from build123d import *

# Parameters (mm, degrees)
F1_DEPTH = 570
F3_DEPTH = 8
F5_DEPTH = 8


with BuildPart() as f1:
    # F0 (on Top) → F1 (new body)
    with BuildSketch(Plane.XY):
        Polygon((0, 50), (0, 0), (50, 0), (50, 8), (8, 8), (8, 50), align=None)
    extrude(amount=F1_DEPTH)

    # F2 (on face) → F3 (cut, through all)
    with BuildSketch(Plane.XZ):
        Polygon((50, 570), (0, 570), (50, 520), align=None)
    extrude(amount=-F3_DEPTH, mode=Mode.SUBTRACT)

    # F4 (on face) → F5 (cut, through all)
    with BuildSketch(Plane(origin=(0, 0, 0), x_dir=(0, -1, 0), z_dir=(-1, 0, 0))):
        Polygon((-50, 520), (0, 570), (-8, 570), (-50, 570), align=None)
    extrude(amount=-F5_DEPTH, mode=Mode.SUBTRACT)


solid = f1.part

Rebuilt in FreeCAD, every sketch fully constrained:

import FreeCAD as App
import Part
import Sketcher
from FreeCAD import Vector


def add_polygon(sketch, points):
    """Adds a closed chain of lines whose ends are joined by coincident constraints."""
    first, n = sketch.GeometryCount, len(points)
    for a, b in zip(points, points[1:] + points[:1]):
        sketch.addGeometry(Part.LineSegment(App.Vector(*a, 0), App.Vector(*b, 0)), False)
    for i in range(n):
        sketch.addConstraint(Sketcher.Constraint("Coincident", first + i, 2, first + (i + 1) % n, 1))

doc = App.newDocument("Part")
body = doc.addObject("PartDesign::Body", "Body")

# Sketch on XY plane
sketch1 = doc.addObject("Sketcher::SketchObject", "Sketch")
body.addObject(sketch1)
sketch1.AttachmentSupport = (doc.XY_Plane, [""])
sketch1.MapMode = "FlatFace"
add_polygon(sketch1, [(0, 50), (0, 0), (50, 0), (50, 8), (8, 8), (8, 50)])  # lines 0-5
sketch1.addConstraint(Sketcher.Constraint("Vertical", 0))
sketch1.addConstraint(Sketcher.Constraint("Horizontal", 1))
sketch1.addConstraint(Sketcher.Constraint("Vertical", 2))
sketch1.addConstraint(Sketcher.Constraint("Horizontal", 3))
sketch1.addConstraint(Sketcher.Constraint("Vertical", 4))
sketch1.addConstraint(Sketcher.Constraint("Horizontal", 5))
sketch1.addConstraint(Sketcher.Constraint("Coincident", 0, 2, -1, 1))
sketch1.addConstraint(Sketcher.Constraint("Equal", 1, 0))
sketch1.addConstraint(Sketcher.Constraint("Equal", 5, 2))
sketch1.addConstraint(Sketcher.Constraint("DistanceX", 1, 1, 1, 2, 50.0))
sketch1.addConstraint(Sketcher.Constraint("DistanceX", 3, 2, 3, 1, 42.0))
pad1 = doc.addObject("PartDesign::Pad", "Pad")
body.addObject(pad1)
pad1.Profile = sketch1
pad1.Length = 570

# Sketch on XZ plane
sketch2 = doc.addObject("Sketcher::SketchObject", "Sketch001")
body.addObject(sketch2)
sketch2.AttachmentSupport = (doc.XZ_Plane, [""])
sketch2.MapMode = "FlatFace"
add_polygon(sketch2, [(50, 570), (0, 570), (50, 520)])  # lines 0-2
sketch2.addConstraint(Sketcher.Constraint("Horizontal", 0))
sketch2.addConstraint(Sketcher.Constraint("Vertical", 2))
sketch2.addConstraint(Sketcher.Constraint("PointOnObject", 0, 2, -2))
sketch2.addConstraint(Sketcher.Constraint("Equal", 0, 2))
sketch2.addConstraint(Sketcher.Constraint("DistanceX", 0, 2, 0, 1, 50.0))
sketch2.addConstraint(Sketcher.Constraint("DistanceY", -1, 1, 0, 2, 570.0))
pocket1 = doc.addObject("PartDesign::Pocket", "Pocket")
body.addObject(pocket1)
pocket1.Profile = sketch2
pocket1.Length = 8

# Sketch on YZ plane
sketch3 = doc.addObject("Sketcher::SketchObject", "Sketch002")
body.addObject(sketch3)
sketch3.AttachmentSupport = (doc.YZ_Plane, [""])
sketch3.MapMode = "FlatFace"
add_polygon(sketch3, [(50, 520), (0, 570), (50, 570)])  # lines 0-2
sketch3.addConstraint(Sketcher.Constraint("Horizontal", 1))
sketch3.addConstraint(Sketcher.Constraint("Vertical", 2))
sketch3.addConstraint(Sketcher.Constraint("PointOnObject", 0, 2, -2))
sketch3.addConstraint(Sketcher.Constraint("Equal", 1, 2))
sketch3.addConstraint(Sketcher.Constraint("DistanceX", 1, 1, 1, 2, 50.0))
sketch3.addConstraint(Sketcher.Constraint("DistanceY", -1, 1, 0, 2, 570.0))
pocket2 = doc.addObject("PartDesign::Pocket", "Pocket001")
body.addObject(pocket2)
pocket2.Profile = sketch3
pocket2.Type = "ThroughAll"
pocket2.Reversed = True

doc.recompute()
